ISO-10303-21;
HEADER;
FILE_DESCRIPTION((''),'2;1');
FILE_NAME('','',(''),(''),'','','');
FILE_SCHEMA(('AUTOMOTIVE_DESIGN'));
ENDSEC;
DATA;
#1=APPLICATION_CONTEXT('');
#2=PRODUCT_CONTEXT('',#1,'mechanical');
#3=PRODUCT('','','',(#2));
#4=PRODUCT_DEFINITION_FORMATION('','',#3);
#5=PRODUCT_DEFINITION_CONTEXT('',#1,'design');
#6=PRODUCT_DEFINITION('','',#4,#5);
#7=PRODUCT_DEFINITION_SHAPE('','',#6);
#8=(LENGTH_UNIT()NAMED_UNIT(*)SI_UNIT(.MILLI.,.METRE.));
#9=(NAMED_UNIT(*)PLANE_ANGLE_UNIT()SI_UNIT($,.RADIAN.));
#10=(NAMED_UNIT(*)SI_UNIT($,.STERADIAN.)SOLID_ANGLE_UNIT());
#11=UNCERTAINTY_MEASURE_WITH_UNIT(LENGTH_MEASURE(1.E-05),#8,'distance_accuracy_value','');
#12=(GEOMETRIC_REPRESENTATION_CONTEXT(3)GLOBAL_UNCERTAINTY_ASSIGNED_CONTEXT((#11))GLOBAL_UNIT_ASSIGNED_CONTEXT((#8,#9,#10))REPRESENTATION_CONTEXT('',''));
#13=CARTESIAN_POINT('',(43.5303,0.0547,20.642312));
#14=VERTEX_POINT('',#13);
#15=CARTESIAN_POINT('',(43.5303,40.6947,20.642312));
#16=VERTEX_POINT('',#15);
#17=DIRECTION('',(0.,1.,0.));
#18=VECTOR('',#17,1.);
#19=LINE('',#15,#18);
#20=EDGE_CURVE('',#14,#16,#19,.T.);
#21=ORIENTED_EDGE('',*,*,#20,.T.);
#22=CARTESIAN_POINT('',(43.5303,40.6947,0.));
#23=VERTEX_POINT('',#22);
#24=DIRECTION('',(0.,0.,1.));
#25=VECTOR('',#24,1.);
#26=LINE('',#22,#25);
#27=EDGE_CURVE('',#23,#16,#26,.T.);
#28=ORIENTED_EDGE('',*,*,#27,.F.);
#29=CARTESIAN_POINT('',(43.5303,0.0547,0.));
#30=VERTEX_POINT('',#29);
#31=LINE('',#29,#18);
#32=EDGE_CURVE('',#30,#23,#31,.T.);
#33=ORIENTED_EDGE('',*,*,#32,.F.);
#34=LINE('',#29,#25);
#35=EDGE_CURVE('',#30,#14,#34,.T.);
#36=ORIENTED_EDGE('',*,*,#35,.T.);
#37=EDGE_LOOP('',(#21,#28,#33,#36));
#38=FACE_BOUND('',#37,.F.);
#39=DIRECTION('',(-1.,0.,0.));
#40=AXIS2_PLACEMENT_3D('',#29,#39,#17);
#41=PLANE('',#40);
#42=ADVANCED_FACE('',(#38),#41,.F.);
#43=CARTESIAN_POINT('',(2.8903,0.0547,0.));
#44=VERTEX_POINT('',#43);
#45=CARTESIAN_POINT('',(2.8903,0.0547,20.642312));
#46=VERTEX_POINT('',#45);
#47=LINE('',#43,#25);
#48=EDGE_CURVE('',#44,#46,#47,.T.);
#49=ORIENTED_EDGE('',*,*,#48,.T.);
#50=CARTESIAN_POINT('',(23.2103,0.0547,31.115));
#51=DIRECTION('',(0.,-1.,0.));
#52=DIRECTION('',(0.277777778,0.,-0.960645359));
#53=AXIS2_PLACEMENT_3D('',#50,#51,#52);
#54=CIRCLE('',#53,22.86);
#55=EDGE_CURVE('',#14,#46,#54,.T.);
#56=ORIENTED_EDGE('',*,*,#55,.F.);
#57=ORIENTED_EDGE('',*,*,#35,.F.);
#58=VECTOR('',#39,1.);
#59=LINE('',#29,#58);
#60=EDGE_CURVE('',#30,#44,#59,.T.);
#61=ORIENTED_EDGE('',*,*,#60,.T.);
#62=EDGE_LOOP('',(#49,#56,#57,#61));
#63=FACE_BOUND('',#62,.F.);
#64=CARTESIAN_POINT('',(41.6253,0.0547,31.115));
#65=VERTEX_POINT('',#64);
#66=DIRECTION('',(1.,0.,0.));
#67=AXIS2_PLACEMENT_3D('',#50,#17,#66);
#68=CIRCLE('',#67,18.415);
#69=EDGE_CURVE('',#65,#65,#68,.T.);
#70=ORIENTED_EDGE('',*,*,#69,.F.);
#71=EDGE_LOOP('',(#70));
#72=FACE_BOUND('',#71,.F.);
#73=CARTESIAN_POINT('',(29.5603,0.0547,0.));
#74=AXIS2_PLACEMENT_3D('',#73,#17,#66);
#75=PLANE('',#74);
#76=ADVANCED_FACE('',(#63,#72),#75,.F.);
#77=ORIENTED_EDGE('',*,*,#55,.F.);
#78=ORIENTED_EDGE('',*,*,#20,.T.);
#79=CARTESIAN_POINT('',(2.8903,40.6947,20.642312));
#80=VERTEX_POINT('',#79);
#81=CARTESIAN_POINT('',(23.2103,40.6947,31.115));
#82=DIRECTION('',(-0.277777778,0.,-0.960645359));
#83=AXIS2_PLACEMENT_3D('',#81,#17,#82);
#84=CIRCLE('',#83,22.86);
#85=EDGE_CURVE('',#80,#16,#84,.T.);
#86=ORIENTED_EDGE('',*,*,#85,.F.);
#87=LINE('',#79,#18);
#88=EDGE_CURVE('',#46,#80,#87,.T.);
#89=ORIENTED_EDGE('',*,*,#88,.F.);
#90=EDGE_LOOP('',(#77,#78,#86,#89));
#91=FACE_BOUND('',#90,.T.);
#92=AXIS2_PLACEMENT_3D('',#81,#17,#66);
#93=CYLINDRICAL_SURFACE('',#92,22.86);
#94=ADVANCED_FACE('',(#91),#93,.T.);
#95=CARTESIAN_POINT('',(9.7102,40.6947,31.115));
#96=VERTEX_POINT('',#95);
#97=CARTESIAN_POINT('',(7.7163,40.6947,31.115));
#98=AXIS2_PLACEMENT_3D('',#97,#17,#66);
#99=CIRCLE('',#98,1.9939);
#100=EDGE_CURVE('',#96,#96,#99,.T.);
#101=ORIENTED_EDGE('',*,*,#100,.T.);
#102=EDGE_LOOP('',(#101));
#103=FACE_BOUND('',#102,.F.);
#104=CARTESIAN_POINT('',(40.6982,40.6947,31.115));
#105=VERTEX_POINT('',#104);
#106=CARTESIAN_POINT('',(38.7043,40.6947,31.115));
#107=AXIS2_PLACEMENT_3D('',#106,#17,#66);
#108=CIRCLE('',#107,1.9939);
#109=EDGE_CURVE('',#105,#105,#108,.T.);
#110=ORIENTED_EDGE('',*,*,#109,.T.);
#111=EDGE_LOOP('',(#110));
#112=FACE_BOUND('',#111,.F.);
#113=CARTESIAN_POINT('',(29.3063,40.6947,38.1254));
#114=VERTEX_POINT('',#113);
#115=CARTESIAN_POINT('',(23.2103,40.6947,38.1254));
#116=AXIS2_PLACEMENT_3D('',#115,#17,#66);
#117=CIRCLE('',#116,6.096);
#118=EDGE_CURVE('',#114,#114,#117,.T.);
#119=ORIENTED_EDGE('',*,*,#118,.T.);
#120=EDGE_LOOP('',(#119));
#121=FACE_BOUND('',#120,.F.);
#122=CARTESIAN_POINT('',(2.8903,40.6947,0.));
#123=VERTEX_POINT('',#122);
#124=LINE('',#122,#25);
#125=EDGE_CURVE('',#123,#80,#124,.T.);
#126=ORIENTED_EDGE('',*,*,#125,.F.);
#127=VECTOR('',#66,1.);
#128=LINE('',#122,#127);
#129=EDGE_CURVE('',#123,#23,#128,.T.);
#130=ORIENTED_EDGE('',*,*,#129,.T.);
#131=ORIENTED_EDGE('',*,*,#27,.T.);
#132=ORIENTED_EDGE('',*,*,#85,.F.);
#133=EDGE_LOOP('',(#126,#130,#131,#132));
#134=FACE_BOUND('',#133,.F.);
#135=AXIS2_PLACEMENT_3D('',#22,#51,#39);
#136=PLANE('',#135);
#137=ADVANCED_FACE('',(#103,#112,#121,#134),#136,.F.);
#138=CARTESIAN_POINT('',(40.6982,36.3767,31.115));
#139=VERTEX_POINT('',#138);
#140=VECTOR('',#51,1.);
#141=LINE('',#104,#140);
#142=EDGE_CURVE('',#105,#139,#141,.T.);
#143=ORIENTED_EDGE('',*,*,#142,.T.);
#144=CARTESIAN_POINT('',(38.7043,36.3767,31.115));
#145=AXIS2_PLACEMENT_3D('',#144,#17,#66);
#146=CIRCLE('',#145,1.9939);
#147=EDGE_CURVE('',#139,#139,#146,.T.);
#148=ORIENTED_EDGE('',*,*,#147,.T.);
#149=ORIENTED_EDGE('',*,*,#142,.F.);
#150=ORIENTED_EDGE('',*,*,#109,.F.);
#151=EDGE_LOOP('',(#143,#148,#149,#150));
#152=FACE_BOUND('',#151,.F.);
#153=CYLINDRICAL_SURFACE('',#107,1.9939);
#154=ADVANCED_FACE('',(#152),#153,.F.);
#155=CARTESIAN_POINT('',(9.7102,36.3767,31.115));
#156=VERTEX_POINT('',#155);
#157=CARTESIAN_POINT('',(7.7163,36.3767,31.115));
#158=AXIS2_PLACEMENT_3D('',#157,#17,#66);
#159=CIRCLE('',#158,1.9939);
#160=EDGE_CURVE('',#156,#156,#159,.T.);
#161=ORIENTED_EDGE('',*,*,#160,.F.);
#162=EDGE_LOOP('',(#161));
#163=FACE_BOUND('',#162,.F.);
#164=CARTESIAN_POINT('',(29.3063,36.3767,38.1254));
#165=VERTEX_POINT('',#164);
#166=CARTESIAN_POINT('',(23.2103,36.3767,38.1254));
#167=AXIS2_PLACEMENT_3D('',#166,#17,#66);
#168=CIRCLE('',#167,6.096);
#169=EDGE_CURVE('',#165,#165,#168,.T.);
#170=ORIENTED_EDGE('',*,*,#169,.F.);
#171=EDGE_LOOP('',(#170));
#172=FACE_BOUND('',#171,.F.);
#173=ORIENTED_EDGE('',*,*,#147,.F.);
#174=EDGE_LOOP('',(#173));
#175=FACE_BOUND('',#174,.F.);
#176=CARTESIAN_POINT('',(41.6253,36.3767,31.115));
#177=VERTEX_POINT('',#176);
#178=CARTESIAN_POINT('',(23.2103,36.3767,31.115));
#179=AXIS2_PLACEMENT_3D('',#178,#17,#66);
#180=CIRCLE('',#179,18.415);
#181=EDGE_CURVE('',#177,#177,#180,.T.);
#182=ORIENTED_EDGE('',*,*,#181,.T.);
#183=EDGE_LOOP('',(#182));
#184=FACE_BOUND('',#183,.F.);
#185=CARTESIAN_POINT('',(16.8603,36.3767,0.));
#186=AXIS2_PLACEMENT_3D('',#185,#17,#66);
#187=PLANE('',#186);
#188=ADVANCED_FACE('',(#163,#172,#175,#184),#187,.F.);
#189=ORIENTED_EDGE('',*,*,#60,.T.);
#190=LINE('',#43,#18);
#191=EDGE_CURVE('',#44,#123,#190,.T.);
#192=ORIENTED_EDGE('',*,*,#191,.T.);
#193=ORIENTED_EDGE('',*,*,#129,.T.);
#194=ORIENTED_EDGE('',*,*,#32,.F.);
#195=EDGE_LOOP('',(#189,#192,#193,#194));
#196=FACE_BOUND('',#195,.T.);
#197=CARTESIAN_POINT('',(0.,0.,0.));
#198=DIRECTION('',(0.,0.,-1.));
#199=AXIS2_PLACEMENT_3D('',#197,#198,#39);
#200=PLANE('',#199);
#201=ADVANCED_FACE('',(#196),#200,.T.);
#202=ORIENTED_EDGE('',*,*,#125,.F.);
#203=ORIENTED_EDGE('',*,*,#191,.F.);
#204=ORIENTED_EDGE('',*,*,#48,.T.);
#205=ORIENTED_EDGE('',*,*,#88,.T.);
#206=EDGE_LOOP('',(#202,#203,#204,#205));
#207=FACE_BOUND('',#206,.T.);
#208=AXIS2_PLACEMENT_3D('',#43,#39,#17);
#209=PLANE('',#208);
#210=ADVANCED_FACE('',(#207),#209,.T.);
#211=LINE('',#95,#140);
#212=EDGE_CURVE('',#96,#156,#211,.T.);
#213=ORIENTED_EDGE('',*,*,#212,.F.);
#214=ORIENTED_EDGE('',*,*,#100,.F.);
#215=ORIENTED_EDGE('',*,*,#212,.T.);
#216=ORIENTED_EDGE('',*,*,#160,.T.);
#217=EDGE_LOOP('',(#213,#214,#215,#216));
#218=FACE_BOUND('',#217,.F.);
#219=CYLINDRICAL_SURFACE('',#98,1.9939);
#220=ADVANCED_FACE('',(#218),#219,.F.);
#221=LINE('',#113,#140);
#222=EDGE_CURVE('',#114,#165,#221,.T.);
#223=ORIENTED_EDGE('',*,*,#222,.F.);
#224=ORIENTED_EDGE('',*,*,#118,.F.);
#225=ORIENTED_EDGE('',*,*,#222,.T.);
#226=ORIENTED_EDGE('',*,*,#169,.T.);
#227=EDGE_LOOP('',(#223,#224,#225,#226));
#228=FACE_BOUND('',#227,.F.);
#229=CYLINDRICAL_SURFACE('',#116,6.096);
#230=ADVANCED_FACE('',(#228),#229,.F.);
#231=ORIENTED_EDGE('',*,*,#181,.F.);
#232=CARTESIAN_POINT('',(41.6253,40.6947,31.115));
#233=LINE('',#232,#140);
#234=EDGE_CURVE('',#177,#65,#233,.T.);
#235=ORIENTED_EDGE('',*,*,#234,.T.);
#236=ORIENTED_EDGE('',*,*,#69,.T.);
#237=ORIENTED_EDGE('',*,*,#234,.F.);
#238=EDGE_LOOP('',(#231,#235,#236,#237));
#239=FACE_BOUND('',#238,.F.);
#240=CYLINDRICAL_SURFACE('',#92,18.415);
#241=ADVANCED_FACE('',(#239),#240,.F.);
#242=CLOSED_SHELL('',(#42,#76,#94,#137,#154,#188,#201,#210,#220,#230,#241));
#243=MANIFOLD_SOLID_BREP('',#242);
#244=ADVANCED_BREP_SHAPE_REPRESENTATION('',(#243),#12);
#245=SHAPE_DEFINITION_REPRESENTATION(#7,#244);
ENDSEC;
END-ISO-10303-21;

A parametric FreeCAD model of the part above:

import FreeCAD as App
import Part
import Sketcher

V = App.Vector
Q = App.Units.Quantity


def add_polygon(sketch, points):
    """Adds a closed chain of lines whose ends are joined by coincident constraints."""
    first, n = sketch.GeometryCount, len(points)
    for a, b in zip(points, points[1:] + points[:1]):
        sketch.addGeometry(Part.LineSegment(App.Vector(*a, 0), App.Vector(*b, 0)), False)
    for i in range(n):
        sketch.addConstraint(Sketcher.Constraint("Coincident", first + i, 2, first + (i + 1) % n, 1))

doc = App.newDocument("Part")
body = doc.addObject("PartDesign::Body", "Body")

sketch1 = body.newObject("Sketcher::SketchObject", "Sketch")
sketch1.AttachmentSupport = (doc.getObject("XY_Plane"), [""])
sketch1.MapMode = "FlatFace"
add_polygon(sketch1, [(16.8603, 0.0547), (29.5603, 0.0547), (29.5603, 40.6947), (16.8603, 40.6947)])
sketch1.addConstraint([
    Sketcher.Constraint("Horizontal", 0),
    Sketcher.Constraint("Vertical", 1),
    Sketcher.Constraint("Horizontal", 2),
    Sketcher.Constraint("Vertical", 3),
    Sketcher.Constraint("DistanceX", 0, 1, 0, 2, Q("0.5 in")),
    Sketcher.Constraint("DistanceY", 1, 1, 1, 2, Q("1.6 in")),
    Sketcher.Constraint("DistanceX", -1, 1, 0, 2, Q("1.1638 in")),
    Sketcher.Constraint("DistanceY", -1, 1, 0, 2, Q("0.0547 mm")),
])
pad1 = body.newObject("PartDesign::Pad", "Pad")
pad1.Profile = sketch1
pad1.Length = Q("0.5 in")

sketch2 = body.newObject("Sketcher::SketchObject", "Sketch001")
sketch2.AttachmentSupport = (doc.getObject("XZ_Plane"), [""])
sketch2.MapMode = "FlatFace"
sketch2.AttachmentOffset = App.Placement(V(0, 0, -40.6947), App.Rotation())
sketch2.addGeometry([
    Part.Circle(V(23.2103, 31.115, 0), V(0, 0, 1), 22.86),
    Part.Circle(V(23.2103, 31.115, 0), V(0, 0, 1), 18.415),
], False)
sketch2.addConstraint([
    Sketcher.Constraint("Coincident", 1, 3, 0, 3),
    Sketcher.Constraint("Diameter", 0, Q("1.8 in")),
    Sketcher.Constraint("Diameter", 1, Q("1.45 in")),
    Sketcher.Constraint("DistanceY", -1, 1, 0, 3, Q("1.225 in")),
    Sketcher.Constraint("DistanceX", -1, 1, 0, 3, Q("0.9138 in")),
])
pad2 = body.newObject("PartDesign::Pad", "Pad001")
pad2.Profile = sketch2
pad2.Length = Q("1.6 in")

sketch3 = body.newObject("Sketcher::SketchObject", "Sketch002")
sketch3.AttachmentSupport = (doc.getObject("XZ_Plane"), [""])
sketch3.MapMode = "FlatFace"
sketch3.AttachmentOffset = App.Placement(V(0, 0, -40.6947), App.Rotation())
sketch3.addGeometry([
    Part.Circle(V(23.2103, 31.115, 0), V(0, 0, 1), 18.415),
    Part.Circle(V(23.2103, 38.1254, 0), V(0, 0, 1), 6.096),
    Part.Circle(V(7.7163, 31.115, 0), V(0, 0, 1), 1.9939),
    Part.Circle(V(38.7043, 31.115, 0), V(0, 0, 1), 1.9939),
], False)
sketch3.addConstraint([
    Sketcher.Constraint("Equal", 2, 3),
    Sketcher.Constraint("Horizontal", 0, 3, 2, 3),
    Sketcher.Constraint("Horizontal", 2, 3, 3, 3),
    Sketcher.Constraint("Vertical", 0, 3, 1, 3),
    Sketcher.Constraint("Diameter", 0, Q("1.45 in")),
    Sketcher.Constraint("Diameter", 1, Q("0.48 in")),
    Sketcher.Constraint("Diameter", 2, Q("0.157 in")),
    Sketcher.Constraint("DistanceX", 2, 3, 3, 3, Q("1.22 in")),
    Sketcher.Constraint("DistanceY", 0, 3, 1, 3, Q("0.276 in")),
    Sketcher.Constraint("DistanceX", 2, 3, 0, 3, Q("0.61 in")),
    Sketcher.Constraint("DistanceY", -1, 1, 0, 3, Q("1.225 in")),
    Sketcher.Constraint("DistanceX", -1, 1, 0, 3, Q("0.9138 in")),
])
pad3 = body.newObject("PartDesign::Pad", "Pad002")
pad3.Profile = sketch3
pad3.Length = Q("0.17 in")

sketch4 = body.newObject("Sketcher::SketchObject", "Sketch003")
sketch4.AttachmentSupport = (doc.getObject("XY_Plane"), [""])
sketch4.MapMode = "FlatFace"
add_polygon(sketch4, [(16.8603, 40.6947), (16.8603, 0.0547), (2.8903, 0.0547), (2.8903, 40.6947)])
sketch4.addConstraint([
    Sketcher.Constraint("Vertical", 0),
    Sketcher.Constraint("Horizontal", 1),
    Sketcher.Constraint("Vertical", 2),
    Sketcher.Constraint("Horizontal", 3),
    Sketcher.Constraint("DistanceY", 0, 2, 0, 1, Q("1.6 in")),
    Sketcher.Constraint("DistanceX", 1, 2, 1, 1, Q("0.55 in")),
    Sketcher.Constraint("DistanceX", -1, 1, 0, 2, Q("0.6638 in")),
    Sketcher.Constraint("DistanceY", -1, 1, 0, 2, Q("0.0547 mm")),
])
pad4 = body.newObject("PartDesign::Pad", "Pad003")
pad4.Profile = sketch4
pad4.Type = "UpToFirst"

sketch5 = body.newObject("Sketcher::SketchObject", "Sketch004")
sketch5.AttachmentSupport = (doc.getObject("XY_Plane"), [""])
sketch5.MapMode = "FlatFace"
add_polygon(sketch5, [(29.5603, 0.0547), (29.5603, 40.6947), (43.5303, 40.6947), (43.5303, 0.0547)])
sketch5.addConstraint([
    Sketcher.Constraint("Vertical", 0),
    Sketcher.Constraint("Horizontal", 1),
    Sketcher.Constraint("Vertical", 2),
    Sketcher.Constraint("Horizontal", 3),
    Sketcher.Constraint("DistanceX", 1, 1, 1, 2, Q("0.55 in")),
    Sketcher.Constraint("DistanceY", 0, 1, 0, 2, Q("1.6 in")),
    Sketcher.Constraint("DistanceX", -1, 1, 0, 2, Q("1.1638 in")),
    Sketcher.Constraint("DistanceY", -1, 1, 0, 2, Q("40.6947 mm")),
])
pad5 = body.newObject("PartDesign::Pad", "Pad004")
pad5.Profile = sketch5
pad5.Type = "UpToFirst"

doc.recompute()
